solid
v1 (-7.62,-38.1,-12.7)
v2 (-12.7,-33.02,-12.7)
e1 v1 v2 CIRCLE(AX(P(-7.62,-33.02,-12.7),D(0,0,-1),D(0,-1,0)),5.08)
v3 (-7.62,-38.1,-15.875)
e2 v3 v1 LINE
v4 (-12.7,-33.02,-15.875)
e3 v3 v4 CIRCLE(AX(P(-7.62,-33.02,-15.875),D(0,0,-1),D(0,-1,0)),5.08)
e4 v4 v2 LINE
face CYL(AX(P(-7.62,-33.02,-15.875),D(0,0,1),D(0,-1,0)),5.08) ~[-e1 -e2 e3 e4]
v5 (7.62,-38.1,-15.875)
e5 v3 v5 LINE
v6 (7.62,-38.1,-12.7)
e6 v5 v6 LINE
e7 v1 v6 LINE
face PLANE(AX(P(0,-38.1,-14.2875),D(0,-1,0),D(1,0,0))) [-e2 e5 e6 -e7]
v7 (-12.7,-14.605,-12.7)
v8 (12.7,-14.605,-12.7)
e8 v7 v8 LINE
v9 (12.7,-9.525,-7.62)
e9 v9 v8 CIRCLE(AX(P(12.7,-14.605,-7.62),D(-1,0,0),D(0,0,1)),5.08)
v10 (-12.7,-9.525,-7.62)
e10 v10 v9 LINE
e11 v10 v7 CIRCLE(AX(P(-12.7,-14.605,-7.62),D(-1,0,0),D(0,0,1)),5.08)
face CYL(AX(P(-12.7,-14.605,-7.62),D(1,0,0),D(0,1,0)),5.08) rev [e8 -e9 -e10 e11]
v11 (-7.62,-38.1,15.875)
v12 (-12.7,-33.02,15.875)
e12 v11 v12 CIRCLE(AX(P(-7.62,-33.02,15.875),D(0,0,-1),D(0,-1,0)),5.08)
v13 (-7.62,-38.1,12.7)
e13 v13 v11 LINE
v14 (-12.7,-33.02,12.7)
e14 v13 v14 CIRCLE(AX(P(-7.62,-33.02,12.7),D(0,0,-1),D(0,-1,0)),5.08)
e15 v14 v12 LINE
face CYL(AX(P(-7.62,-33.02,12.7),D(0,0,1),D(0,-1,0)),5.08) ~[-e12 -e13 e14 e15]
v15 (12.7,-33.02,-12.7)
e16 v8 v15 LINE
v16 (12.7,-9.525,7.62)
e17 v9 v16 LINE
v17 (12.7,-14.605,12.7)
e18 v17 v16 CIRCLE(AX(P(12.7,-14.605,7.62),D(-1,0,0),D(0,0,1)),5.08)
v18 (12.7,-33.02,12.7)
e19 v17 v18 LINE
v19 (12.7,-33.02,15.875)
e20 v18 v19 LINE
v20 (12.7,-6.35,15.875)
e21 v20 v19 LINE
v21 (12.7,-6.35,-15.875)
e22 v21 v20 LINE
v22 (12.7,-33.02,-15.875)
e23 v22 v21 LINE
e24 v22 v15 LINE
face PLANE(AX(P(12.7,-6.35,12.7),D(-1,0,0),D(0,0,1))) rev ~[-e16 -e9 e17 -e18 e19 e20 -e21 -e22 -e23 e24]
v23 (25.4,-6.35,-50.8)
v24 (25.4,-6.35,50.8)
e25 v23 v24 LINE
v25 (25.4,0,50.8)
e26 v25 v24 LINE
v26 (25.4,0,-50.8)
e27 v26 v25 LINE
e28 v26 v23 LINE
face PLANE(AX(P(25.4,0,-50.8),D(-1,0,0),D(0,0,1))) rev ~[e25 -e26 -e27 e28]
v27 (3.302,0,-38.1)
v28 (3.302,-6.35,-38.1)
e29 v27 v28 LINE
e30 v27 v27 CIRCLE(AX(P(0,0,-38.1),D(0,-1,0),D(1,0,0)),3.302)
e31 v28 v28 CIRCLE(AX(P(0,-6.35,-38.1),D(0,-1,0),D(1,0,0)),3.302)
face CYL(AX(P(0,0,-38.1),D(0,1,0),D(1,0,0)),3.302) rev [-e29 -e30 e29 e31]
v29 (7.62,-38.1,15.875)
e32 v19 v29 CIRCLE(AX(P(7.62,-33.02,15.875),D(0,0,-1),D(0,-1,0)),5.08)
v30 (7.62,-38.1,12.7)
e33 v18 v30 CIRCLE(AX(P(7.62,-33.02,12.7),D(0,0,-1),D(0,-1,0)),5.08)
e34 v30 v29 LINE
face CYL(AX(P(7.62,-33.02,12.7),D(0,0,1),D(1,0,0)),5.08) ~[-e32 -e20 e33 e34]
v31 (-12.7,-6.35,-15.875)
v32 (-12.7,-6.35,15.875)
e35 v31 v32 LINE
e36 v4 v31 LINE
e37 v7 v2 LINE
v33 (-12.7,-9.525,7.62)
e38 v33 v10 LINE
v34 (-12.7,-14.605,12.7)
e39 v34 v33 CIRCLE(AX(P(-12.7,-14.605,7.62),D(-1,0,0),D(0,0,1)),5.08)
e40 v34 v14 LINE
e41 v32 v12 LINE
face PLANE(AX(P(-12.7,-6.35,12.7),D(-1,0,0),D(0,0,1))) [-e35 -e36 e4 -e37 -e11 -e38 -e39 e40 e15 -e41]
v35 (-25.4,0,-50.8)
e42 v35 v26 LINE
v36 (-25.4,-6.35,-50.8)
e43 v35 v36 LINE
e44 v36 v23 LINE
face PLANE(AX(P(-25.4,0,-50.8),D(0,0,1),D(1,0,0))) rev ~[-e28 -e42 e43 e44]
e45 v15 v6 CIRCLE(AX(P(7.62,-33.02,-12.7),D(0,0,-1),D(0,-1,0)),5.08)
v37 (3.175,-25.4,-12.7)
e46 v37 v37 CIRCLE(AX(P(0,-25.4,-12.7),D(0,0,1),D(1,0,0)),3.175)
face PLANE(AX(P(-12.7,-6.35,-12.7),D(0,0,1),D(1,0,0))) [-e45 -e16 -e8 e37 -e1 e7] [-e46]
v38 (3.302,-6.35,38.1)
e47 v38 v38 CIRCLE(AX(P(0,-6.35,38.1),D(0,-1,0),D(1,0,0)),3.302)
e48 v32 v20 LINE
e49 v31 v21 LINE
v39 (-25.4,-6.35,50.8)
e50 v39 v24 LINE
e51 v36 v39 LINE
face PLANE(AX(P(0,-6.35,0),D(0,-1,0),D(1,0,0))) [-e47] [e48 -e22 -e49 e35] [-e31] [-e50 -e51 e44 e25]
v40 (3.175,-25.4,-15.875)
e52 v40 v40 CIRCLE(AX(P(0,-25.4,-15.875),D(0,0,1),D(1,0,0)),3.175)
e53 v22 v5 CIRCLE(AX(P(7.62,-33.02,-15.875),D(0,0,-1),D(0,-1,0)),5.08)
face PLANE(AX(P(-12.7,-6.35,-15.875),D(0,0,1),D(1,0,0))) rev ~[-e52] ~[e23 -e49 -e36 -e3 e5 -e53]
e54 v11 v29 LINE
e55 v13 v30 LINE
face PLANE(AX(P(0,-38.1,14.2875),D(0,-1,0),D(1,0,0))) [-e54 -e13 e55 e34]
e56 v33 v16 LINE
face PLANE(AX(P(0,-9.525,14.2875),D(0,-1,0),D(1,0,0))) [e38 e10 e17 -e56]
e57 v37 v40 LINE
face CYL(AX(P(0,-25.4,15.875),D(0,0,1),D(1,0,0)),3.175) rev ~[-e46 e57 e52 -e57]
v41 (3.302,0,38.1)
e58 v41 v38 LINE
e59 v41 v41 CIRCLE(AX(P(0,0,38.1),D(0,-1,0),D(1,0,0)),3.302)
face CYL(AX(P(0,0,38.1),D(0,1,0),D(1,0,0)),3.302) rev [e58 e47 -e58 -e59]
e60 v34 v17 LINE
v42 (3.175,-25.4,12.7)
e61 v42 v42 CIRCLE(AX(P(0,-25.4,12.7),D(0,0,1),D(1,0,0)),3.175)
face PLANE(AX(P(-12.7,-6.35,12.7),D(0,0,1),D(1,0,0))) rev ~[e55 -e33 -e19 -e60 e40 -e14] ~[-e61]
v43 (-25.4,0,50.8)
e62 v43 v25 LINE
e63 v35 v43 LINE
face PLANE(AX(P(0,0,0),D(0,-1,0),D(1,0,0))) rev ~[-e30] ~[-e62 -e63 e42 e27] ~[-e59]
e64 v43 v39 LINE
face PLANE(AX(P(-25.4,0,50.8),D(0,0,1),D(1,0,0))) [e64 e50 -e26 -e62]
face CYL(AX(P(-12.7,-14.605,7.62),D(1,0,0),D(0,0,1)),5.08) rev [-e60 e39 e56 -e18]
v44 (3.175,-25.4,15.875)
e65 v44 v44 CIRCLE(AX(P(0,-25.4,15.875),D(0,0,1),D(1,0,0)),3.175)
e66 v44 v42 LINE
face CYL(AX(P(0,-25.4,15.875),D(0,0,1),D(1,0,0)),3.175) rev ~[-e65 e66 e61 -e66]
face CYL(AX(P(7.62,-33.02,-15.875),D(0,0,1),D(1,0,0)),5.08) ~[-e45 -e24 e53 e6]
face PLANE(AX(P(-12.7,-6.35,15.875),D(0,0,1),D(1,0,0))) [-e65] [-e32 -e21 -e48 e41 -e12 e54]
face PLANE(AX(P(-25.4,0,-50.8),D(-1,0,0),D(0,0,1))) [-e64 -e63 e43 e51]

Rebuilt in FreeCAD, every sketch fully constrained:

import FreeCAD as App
import Part
import Sketcher
Q = App.Units.Quantity


def edges_at(feature, points):
    """Names of the edges that pass closest to the given points."""
    edges = feature.Shape.Edges
    near = lambda p: min(range(len(edges)), key=lambda i: edges[i].distToShape(Part.Vertex(*p))[0])
    return sorted({f"Edge{near(p) + 1}" for p in points})

doc = App.newDocument("Part")
body = doc.addObject("PartDesign::Body", "Body")

sketch1 = body.newObject("Sketcher::SketchObject", "Sketch")
sketch1.AttachmentSupport = (doc.getObject("XZ_Plane"), [""])
sketch1.MapMode = "FlatFace"
sketch1.addGeometry([
    Part.LineSegment(App.Vector(-25.4, 50.8, 0), App.Vector(-25.4, -50.8, 0)),
    Part.LineSegment(App.Vector(-25.4, -50.8, 0), App.Vector(25.4, -50.8, 0)),
    Part.LineSegment(App.Vector(25.4, -50.8, 0), App.Vector(25.4, 50.8, 0)),
    Part.LineSegment(App.Vector(25.4, 50.8, 0), App.Vector(-25.4, 50.8, 0)),
    Part.Circle(App.Vector(0, -38.1, 0), App.Vector(0, 0, 1), 3.3),
    Part.Circle(App.Vector(0, 38.1, 0), App.Vector(0, 0, 1), 3.3),
], False)
sketch1.addConstraint([
    Sketcher.Constraint("Coincident", 0, 2, 1, 1),
    Sketcher.Constraint("Coincident", 1, 2, 2, 1),
    Sketcher.Constraint("Coincident", 2, 2, 3, 1),
    Sketcher.Constraint("Coincident", 3, 2, 0, 1),
    Sketcher.Constraint("Vertical", 0),
    Sketcher.Constraint("Horizontal", 1),
    Sketcher.Constraint("Vertical", 2),
    Sketcher.Constraint("Horizontal", 3),
    Sketcher.Constraint("Equal", 4, 5),
    Sketcher.Constraint("Symmetric", 4, 3, 5, 3, -1, 1),
    Sketcher.Constraint("Symmetric", 0, 2, 2, 2, -1, 1),
    Sketcher.Constraint("PointOnObject", 4, 3, -2),
    Sketcher.Constraint("Diameter", 4, Q("0.26 in")),
    Sketcher.Constraint("DistanceX", 1, 1, 1, 2, Q("2 in")),
    Sketcher.Constraint("DistanceY", 0, 2, 0, 1, Q("4 in")),
    Sketcher.Constraint("DistanceY", 4, 3, 5, 3, Q("3 in")),
])
pad1 = body.newObject("PartDesign::Pad", "Pad")
pad1.Profile = sketch1
pad1.Length = Q("0.25 in")

sketch2 = body.newObject("Sketcher::SketchObject", "Sketch001")
sketch2.AttachmentSupport = (doc.getObject("XZ_Plane"), [""])
sketch2.MapMode = "FlatFace"
sketch2.AttachmentOffset = App.Placement(App.Vector(0, 0, 0.25 * 25.4), App.Rotation())
sketch2.addGeometry([
    Part.LineSegment(App.Vector(-12.7, -12.7, 0), App.Vector(-12.7, -15.9, 0)),
    Part.LineSegment(App.Vector(-12.7, -15.9, 0), App.Vector(12.7, -15.9, 0)),
    Part.LineSegment(App.Vector(12.7, -15.9, 0), App.Vector(12.7, -12.7, 0)),
    Part.LineSegment(App.Vector(12.7, -12.7, 0), App.Vector(-12.7, -12.7, 0)),
    Part.LineSegment(App.Vector(-12.7, 15.9, 0), App.Vector(-12.7, 12.7, 0)),
    Part.LineSegment(App.Vector(-12.7, 12.7, 0), App.Vector(12.7, 12.7, 0)),
    Part.LineSegment(App.Vector(12.7, 12.7, 0), App.Vector(12.7, 15.9, 0)),
    Part.LineSegment(App.Vector(12.7, 15.9, 0), App.Vector(-12.7, 15.9, 0)),
], False)
sketch2.addConstraint([
    Sketcher.Constraint("Coincident", 0, 2, 1, 1),
    Sketcher.Constraint("Coincident", 1, 2, 2, 1),
    Sketcher.Constraint("Coincident", 2, 2, 3, 1),
    Sketcher.Constraint("Coincident", 3, 2, 0, 1),
    Sketcher.Constraint("Coincident", 4, 2, 5, 1),
    Sketcher.Constraint("Coincident", 5, 2, 6, 1),
    Sketcher.Constraint("Coincident", 6, 2, 7, 1),
    Sketcher.Constraint("Coincident", 7, 2, 4, 1),
    Sketcher.Constraint("Vertical", 0),
    Sketcher.Constraint("Horizontal", 1),
    Sketcher.Constraint("Vertical", 2),
    Sketcher.Constraint("Horizontal", 3),
    Sketcher.Constraint("Vertical", 4),
    Sketcher.Constraint("Horizontal", 5),
    Sketcher.Constraint("Vertical", 6),
    Sketcher.Constraint("Horizontal", 7),
    Sketcher.Constraint("Symmetric", 2, 2, 4, 2, -1, 1),
    Sketcher.Constraint("Symmetric", 0, 2, 6, 2, -1, 1),
    Sketcher.Constraint("Vertical", 3, 2, 4, 2),
    Sketcher.Constraint("DistanceX", 1, 1, 1, 2, Q("1 in")),
    Sketcher.Constraint("DistanceY", 3, 2, 4, 2, Q("1 in")),
    Sketcher.Constraint("DistanceY", 0, 2, 0, 1, Q("0.125 in")),
])
pad2 = body.newObject("PartDesign::Pad", "Pad001")
pad2.Profile = sketch2
pad2.Length = Q("1.25 in")

sketch3 = body.newObject("Sketcher::SketchObject", "Sketch002")
sketch3.AttachmentSupport = (doc.getObject("XZ_Plane"), [""])
sketch3.MapMode = "FlatFace"
sketch3.AttachmentOffset = App.Placement(App.Vector(0, 0, 0.25 * 25.4), App.Rotation())
sketch3.addGeometry([
    Part.LineSegment(App.Vector(-13, 16, 0), App.Vector(-13, -16, 0)),
    Part.LineSegment(App.Vector(-13, -16, 0), App.Vector(13, -16, 0)),
    Part.LineSegment(App.Vector(13, -16, 0), App.Vector(13, 16, 0)),
    Part.LineSegment(App.Vector(13, 16, 0), App.Vector(-13, 16, 0)),
], False)
sketch3.addConstraint([
    Sketcher.Constraint("Coincident", 0, 2, 1, 1),
    Sketcher.Constraint("Coincident", 1, 2, 2, 1),
    Sketcher.Constraint("Coincident", 2, 2, 3, 1),
    Sketcher.Constraint("Coincident", 3, 2, 0, 1),
    Sketcher.Constraint("Vertical", 0),
    Sketcher.Constraint("Horizontal", 1),
    Sketcher.Constraint("Vertical", 2),
    Sketcher.Constraint("Horizontal", 3),
    Sketcher.Constraint("Symmetric", 0, 2, 2, 2, -1, 1),
    Sketcher.Constraint("DistanceX", 1, 1, 1, 2, Q("1 in")),
    Sketcher.Constraint("DistanceY", 0, 2, 0, 1, Q("1.25 in")),
])
pad3 = body.newObject("PartDesign::Pad", "Pad002")
pad3.Profile = sketch3
pad3.Length = Q("0.125 in")
doc.recompute()

fillet = body.newObject("PartDesign::Fillet", "Fillet")
fillet.Base = (pad3, edges_at(pad3, [(0, -9.525, -12.7), (0, -9.525, 12.7)]))
fillet.Radius = Q("0.2 in")
doc.recompute()

fillet2 = body.newObject("PartDesign::Fillet", "Fillet001")
fillet2.Base = (fillet, edges_at(fillet, [
    (12.7, -38.1, 14.287),
    (-12.7, -38.1, 14.287),
    (12.7, -38.1, -14.287),
    (-12.7, -38.1, -14.287),
]))
fillet2.Radius = Q("0.2 in")

sketch4 = body.newObject("Sketcher::SketchObject", "Sketch003")
sketch4.AttachmentSupport = (doc.getObject("XY_Plane"), [""])
sketch4.MapMode = "FlatFace"
sketch4.AttachmentOffset = App.Placement(App.Vector(0, 0, 0.625 * 25.4), App.Rotation())
sketch4.addGeometry(Part.Circle(App.Vector(0, -25.4, 0), App.Vector(0, 0, 1), 3.2), False)
sketch4.addConstraint([
    Sketcher.Constraint("PointOnObject", 0, 3, -2),
    Sketcher.Constraint("Diameter", 0, Q("0.25 in")),
    Sketcher.Constraint("DistanceY", 0, 3, -1, 1, Q("1 in")),
])
pocket1 = body.newObject("PartDesign::Pocket", "Pocket")
pocket1.Profile = sketch4
pocket1.Type = "ThroughAll"

doc.recompute()
